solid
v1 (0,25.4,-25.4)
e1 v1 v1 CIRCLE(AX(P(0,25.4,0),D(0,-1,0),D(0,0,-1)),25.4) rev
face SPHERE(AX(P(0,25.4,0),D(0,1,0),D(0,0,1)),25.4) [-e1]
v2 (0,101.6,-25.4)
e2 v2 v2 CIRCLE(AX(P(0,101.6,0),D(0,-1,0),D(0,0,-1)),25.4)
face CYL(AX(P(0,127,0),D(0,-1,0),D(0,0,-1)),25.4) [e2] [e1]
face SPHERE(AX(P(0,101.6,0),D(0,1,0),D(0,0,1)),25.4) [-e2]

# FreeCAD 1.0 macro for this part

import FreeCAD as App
import Part
import Sketcher

V = App.Vector
Q = App.Units.Quantity


def edges_at(feature, points):
    """Names of the edges that pass closest to the given points."""
    edges = feature.Shape.Edges
    near = lambda p: min(range(len(edges)), key=lambda i: edges[i].distToShape(Part.Vertex(*p))[0])
    return sorted({f"Edge{near(p) + 1}" for p in points})

doc = App.newDocument("Part")
body = doc.addObject("PartDesign::Body", "Body")

# Sketch on XZ plane
sketch1 = body.newObject("Sketcher::SketchObject", "Sketch")
sketch1.AttachmentSupport = (doc.getObject("XZ_Plane"), [""])
sketch1.MapMode = "FlatFace"
sketch1.addGeometry(Part.Circle(V(0, 0, 0), V(0, 0, 1), 25), False)
sketch1.addConstraint([
    Sketcher.Constraint("Coincident", 0, 3, -1, 1),
    Sketcher.Constraint("Diameter", 0, Q("2 in")),
])
pad1 = body.newObject("PartDesign::Pad", "Pad")
pad1.Profile = sketch1
pad1.Length = Q("5 in")
pad1.Reversed = True
doc.recompute()

fillet = body.newObject("PartDesign::Fillet", "Fillet")
fillet.Base = (pad1, edges_at(pad1, [(-25.4, 0, 0), (-25.4, 127, 0)]))
fillet.Radius = Q("1 in")

doc.recompute()
